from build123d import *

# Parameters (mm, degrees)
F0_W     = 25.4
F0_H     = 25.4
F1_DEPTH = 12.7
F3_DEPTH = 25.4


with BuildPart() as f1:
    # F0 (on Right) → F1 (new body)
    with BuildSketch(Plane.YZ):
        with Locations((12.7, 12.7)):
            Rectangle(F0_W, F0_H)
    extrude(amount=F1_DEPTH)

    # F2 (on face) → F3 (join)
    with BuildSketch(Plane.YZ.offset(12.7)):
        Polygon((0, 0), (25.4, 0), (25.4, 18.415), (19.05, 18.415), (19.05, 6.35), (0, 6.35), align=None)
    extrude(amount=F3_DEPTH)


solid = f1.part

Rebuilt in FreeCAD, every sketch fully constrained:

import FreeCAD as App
import Part
import Sketcher

V = App.Vector
Q = App.Units.Quantity

doc = App.newDocument("Part")
body = doc.addObject("PartDesign::Body", "Body")

sketch1 = doc.addObject("Sketcher::SketchObject", "Sketch")
body.addObject(sketch1)
sketch1.AttachmentSupport = (doc.YZ_Plane, [""])
sketch1.MapMode = "FlatFace"
sketch1.addGeometry([
    Part.LineSegment(V(0, 25, 0), V(0, 0, 0)),
    Part.LineSegment(V(0, 0, 0), V(25, 0, 0)),
    Part.LineSegment(V(25, 0, 0), V(25, 25, 0)),
    Part.LineSegment(V(25, 25, 0), V(0, 25, 0)),
], False)
sketch1.addConstraint([
    Sketcher.Constraint("Coincident", 0, 2, 1, 1),
    Sketcher.Constraint("Coincident", 1, 2, 2, 1),
    Sketcher.Constraint("Coincident", 2, 2, 3, 1),
    Sketcher.Constraint("Coincident", 3, 2, 0, 1),
    Sketcher.Constraint("Vertical", 0),
    Sketcher.Constraint("Horizontal", 1),
    Sketcher.Constraint("Vertical", 2),
    Sketcher.Constraint("Horizontal", 3),
    Sketcher.Constraint("Coincident", 0, 2, -1, 1),
    Sketcher.Constraint("Equal", 3, 0),
    Sketcher.Constraint("DistanceX", 1, 1, 1, 2, Q("1 in")),
])
pad1 = doc.addObject("PartDesign::Pad", "Pad")
body.addObject(pad1)
pad1.Profile = sketch1
pad1.Length = Q("0.5 in")

sketch2 = doc.addObject("Sketcher::SketchObject", "Sketch001")
body.addObject(sketch2)
sketch2.AttachmentSupport = (doc.YZ_Plane, [""])
sketch2.MapMode = "FlatFace"
sketch2.AttachmentOffset = App.Placement(V(0, 0, 0.5 * 25.4), App.Rotation())
sketch2.addGeometry([
    Part.LineSegment(V(0, 0, 0), V(25, 0, 0)),
    Part.LineSegment(V(25, 0, 0), V(25, 18, 0)),
    Part.LineSegment(V(25, 18, 0), V(19, 18, 0)),
    Part.LineSegment(V(19, 18, 0), V(19, 6, 0)),
    Part.LineSegment(V(19, 6, 0), V(0, 6, 0)),
    Part.LineSegment(V(0, 6, 0), V(0, 0, 0)),
], False)
sketch2.addConstraint([
    Sketcher.Constraint("Coincident", 0, 2, 1, 1),
    Sketcher.Constraint("Coincident", 1, 2, 2, 1),
    Sketcher.Constraint("Coincident", 2, 2, 3, 1),
    Sketcher.Constraint("Coincident", 3, 2, 4, 1),
    Sketcher.Constraint("Coincident", 4, 2, 5, 1),
    Sketcher.Constraint("Coincident", 5, 2, 0, 1),
    Sketcher.Constraint("Horizontal", 0),
    Sketcher.Constraint("Vertical", 1),
    Sketcher.Constraint("Horizontal", 2),
    Sketcher.Constraint("Vertical", 3),
    Sketcher.Constraint("Horizontal", 4),
    Sketcher.Constraint("Vertical", 5),
    Sketcher.Constraint("Coincident", 5, 2, -1, 1),
    Sketcher.Constraint("Equal", 2, 5),
    Sketcher.Constraint("DistanceX", 0, 1, 0, 2, Q("1 in")),
    Sketcher.Constraint("DistanceX", 2, 2, 2, 1, Q("0.25 in")),
    Sketcher.Constraint("DistanceY", 1, 1, 1, 2, Q("0.725 in")),
])
pad2 = doc.addObject("PartDesign::Pad", "Pad001")
body.addObject(pad2)
pad2.Profile = sketch2
pad2.Length = Q("1 in")

doc.recompute()
